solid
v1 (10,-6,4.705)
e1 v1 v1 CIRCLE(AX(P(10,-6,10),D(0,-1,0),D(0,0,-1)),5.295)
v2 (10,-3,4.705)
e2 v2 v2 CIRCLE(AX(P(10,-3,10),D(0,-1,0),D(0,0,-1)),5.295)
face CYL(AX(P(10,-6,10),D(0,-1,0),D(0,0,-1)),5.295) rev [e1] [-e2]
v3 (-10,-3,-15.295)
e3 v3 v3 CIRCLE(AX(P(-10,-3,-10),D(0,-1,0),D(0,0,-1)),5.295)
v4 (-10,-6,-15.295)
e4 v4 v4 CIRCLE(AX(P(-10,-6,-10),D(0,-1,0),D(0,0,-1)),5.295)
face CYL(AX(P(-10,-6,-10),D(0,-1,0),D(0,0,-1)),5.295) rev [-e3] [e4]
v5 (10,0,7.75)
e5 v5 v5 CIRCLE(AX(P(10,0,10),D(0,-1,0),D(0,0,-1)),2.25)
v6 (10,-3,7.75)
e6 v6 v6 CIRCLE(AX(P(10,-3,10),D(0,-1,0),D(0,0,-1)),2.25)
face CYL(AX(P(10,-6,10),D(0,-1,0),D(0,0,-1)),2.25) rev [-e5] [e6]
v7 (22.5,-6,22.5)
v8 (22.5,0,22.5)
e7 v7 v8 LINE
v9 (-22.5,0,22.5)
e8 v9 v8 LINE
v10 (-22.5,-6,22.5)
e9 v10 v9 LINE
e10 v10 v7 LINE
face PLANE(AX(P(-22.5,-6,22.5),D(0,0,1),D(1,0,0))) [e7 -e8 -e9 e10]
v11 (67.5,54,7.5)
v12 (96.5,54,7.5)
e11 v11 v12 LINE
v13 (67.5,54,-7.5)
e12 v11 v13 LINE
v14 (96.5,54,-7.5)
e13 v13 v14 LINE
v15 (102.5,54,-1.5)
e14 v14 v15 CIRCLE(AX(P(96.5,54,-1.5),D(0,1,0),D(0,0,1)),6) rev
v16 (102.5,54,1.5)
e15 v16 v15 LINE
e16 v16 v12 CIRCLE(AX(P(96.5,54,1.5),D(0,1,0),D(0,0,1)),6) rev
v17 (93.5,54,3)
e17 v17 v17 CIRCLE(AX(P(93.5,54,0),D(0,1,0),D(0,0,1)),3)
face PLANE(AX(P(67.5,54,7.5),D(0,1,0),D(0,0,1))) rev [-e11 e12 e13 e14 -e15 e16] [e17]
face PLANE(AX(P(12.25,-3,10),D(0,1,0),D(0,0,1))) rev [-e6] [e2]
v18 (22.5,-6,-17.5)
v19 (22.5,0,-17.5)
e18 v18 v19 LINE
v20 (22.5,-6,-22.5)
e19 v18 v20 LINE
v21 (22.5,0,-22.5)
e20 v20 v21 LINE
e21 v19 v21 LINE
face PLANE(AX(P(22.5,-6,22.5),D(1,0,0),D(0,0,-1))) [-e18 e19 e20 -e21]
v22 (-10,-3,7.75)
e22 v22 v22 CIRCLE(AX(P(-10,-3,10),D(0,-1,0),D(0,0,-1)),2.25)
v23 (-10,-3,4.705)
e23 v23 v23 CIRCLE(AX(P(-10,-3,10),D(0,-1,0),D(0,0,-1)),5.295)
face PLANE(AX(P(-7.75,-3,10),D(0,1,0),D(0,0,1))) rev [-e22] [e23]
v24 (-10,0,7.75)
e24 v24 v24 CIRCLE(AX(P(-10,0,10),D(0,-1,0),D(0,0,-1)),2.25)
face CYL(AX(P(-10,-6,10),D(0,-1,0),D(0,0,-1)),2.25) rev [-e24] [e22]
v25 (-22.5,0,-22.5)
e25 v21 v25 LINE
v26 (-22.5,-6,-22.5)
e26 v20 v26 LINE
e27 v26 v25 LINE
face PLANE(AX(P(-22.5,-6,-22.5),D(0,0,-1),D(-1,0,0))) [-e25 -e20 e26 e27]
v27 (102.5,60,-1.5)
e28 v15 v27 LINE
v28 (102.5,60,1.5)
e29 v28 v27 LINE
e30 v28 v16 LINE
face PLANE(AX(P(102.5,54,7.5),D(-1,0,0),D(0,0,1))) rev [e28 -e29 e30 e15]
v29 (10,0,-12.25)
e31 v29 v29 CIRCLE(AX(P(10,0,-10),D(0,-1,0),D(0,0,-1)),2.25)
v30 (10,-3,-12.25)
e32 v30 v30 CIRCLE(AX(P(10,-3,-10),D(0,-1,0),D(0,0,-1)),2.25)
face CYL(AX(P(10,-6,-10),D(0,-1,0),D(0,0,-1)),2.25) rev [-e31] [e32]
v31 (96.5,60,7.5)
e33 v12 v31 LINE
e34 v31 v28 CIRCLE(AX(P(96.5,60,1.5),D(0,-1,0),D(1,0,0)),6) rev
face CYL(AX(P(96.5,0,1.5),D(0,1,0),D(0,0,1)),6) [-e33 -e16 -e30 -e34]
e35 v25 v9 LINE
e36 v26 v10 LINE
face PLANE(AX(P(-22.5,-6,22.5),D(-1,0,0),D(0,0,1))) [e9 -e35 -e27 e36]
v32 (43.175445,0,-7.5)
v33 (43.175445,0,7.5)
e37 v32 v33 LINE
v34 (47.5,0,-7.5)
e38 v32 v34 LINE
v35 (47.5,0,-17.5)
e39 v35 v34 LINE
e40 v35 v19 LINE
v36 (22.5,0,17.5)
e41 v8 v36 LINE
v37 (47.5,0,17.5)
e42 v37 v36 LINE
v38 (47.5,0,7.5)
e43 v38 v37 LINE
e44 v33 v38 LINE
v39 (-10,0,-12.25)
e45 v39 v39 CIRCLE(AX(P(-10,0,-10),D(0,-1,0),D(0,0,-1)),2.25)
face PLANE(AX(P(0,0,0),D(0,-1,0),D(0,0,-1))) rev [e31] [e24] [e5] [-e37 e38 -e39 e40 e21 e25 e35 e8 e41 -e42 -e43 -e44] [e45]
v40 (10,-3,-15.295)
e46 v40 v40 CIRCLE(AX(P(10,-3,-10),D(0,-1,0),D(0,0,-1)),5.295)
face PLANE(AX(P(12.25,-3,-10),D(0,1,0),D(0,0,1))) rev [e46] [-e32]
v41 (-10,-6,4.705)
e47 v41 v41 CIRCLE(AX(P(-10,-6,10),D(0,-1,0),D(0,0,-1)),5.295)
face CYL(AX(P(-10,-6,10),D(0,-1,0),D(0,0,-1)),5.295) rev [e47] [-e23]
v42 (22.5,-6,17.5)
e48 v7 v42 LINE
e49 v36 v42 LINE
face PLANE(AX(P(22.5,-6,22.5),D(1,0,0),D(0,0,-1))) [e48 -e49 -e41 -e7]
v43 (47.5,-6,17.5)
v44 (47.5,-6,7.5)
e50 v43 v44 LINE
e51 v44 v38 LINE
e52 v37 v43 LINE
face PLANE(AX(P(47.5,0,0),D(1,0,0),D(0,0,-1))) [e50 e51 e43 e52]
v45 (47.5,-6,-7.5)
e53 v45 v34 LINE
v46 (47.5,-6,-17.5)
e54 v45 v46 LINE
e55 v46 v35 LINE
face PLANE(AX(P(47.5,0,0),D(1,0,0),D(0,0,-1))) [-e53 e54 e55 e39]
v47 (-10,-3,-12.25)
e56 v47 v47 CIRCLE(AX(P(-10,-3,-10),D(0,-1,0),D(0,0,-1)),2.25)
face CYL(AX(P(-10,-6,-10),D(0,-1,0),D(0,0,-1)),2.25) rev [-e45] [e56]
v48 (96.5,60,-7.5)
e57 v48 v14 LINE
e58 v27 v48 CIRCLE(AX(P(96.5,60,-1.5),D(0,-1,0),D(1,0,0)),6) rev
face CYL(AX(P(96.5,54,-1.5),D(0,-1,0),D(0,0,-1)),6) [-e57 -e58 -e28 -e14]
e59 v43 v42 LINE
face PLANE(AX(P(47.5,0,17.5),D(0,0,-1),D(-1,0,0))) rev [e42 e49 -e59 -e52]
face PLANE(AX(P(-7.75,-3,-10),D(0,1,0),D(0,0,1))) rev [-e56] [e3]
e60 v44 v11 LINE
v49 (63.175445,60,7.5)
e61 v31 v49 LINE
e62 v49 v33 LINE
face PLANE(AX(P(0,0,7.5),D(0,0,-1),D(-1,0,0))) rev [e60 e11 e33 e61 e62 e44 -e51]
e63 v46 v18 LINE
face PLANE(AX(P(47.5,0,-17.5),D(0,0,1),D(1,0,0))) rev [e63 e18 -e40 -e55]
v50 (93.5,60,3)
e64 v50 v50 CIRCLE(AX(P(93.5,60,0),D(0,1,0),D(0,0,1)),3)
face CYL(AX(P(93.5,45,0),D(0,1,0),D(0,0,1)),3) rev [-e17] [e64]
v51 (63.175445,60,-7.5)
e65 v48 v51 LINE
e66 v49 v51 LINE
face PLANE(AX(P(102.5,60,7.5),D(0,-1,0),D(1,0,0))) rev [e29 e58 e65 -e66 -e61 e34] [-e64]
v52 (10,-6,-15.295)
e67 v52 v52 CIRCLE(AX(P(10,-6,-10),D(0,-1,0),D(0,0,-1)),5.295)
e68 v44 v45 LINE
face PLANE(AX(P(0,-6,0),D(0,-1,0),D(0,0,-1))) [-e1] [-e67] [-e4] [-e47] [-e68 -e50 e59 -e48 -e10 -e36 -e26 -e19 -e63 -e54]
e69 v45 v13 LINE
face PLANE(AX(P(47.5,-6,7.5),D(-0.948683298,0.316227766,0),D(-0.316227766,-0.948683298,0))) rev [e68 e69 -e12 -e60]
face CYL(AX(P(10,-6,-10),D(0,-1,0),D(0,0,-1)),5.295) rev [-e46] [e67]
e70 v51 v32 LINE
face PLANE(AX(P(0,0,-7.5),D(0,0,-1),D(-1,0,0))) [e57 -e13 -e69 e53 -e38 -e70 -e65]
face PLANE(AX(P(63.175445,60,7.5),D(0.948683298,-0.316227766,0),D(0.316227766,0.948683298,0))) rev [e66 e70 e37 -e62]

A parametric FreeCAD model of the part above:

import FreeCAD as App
import Part
import Sketcher


def edges_at(feature, points):
    """Names of the edges that pass closest to the given points."""
    edges = feature.Shape.Edges
    near = lambda p: min(range(len(edges)), key=lambda i: edges[i].distToShape(Part.Vertex(*p))[0])
    return sorted({f"Edge{near(p) + 1}" for p in points})


def add_polygon(sketch, points):
    """Adds a closed chain of lines whose ends are joined by coincident constraints."""
    first, n = sketch.GeometryCount, len(points)
    for a, b in zip(points, points[1:] + points[:1]):
        sketch.addGeometry(Part.LineSegment(App.Vector(*a, 0), App.Vector(*b, 0)), False)
    for i in range(n):
        sketch.addConstraint(Sketcher.Constraint("Coincident", first + i, 2, first + (i + 1) % n, 1))

doc = App.newDocument("Part")
body = doc.addObject("PartDesign::Body", "Body")

# Sketch on XZ plane
sketch1 = doc.addObject("Sketcher::SketchObject", "Sketch")
body.addObject(sketch1)
sketch1.AttachmentSupport = (doc.XZ_Plane, [""])
sketch1.MapMode = "FlatFace"
add_polygon(sketch1, [(-22, -22), (-22, 22), (22, 22), (22, -22)])  # lines 0-3
sketch1.addConstraint(Sketcher.Constraint("Vertical", 0))
sketch1.addConstraint(Sketcher.Constraint("Horizontal", 1))
sketch1.addConstraint(Sketcher.Constraint("Vertical", 2))
sketch1.addConstraint(Sketcher.Constraint("Horizontal", 3))
sketch1.addConstraint(Sketcher.Constraint("Symmetric", 0, 2, 2, 2, -1, 1))
sketch1.addConstraint(Sketcher.Constraint("Equal", 3, 0))
sketch1.addConstraint(Sketcher.Constraint("DistanceX", 1, 1, 1, 2, 45.0))
pad1 = doc.addObject("PartDesign::Pad", "Pad")
body.addObject(pad1)
pad1.Profile = sketch1
pad1.Length = 6

# Sketch on XZ plane
sketch2 = doc.addObject("Sketcher::SketchObject", "Sketch001")
body.addObject(sketch2)
sketch2.AttachmentSupport = (doc.XZ_Plane, [""])
sketch2.MapMode = "FlatFace"
sketch2.AttachmentOffset = App.Placement(App.Vector(0, 0, 6), App.Rotation())
sketch2.addGeometry(Part.Circle(App.Vector(-10, 10, 0), App.Vector(0, 0, 1), 2.2), False)
sketch2.addGeometry(Part.Circle(App.Vector(10, 10, 0), App.Vector(0, 0, 1), 2.2), False)
sketch2.addGeometry(Part.Circle(App.Vector(10, -10, 0), App.Vector(0, 0, 1), 2.2), False)
sketch2.addGeometry(Part.Circle(App.Vector(-10, -10, 0), App.Vector(0, 0, 1), 2.2), False)
sketch2.addConstraint(Sketcher.Constraint("Equal", 0, 1))
sketch2.addConstraint(Sketcher.Constraint("Equal", 1, 2))
sketch2.addConstraint(Sketcher.Constraint("Equal", 2, 3))
sketch2.addConstraint(Sketcher.Constraint("Symmetric", 0, 3, 2, 3, -1, 1))
sketch2.addConstraint(Sketcher.Constraint("Symmetric", 1, 3, 3, 3, -1, 1))
sketch2.addConstraint(Sketcher.Constraint("Symmetric", 0, 3, 1, 3, -2))
sketch2.addConstraint(Sketcher.Constraint("Diameter", 0, 4.5))
sketch2.addConstraint(Sketcher.Constraint("DistanceX", 0, 3, -1, 1, 10.0))
sketch2.addConstraint(Sketcher.Constraint("DistanceY", -1, 1, 0, 3, 10.0))
doc.recompute()
hole = doc.addObject("PartDesign::Hole", "Hole")
body.addObject(hole)
hole.Profile = sketch2
hole.ThreadType = "None"
hole.Diameter = 4.5
hole.DepthType = "ThroughAll"
hole.HoleCutType = "Counterbore"
hole.HoleCutDiameter = 10.59
hole.HoleCutDepth = 3

# Sketch on YZ plane
sketch3 = doc.addObject("Sketcher::SketchObject", "Sketch002")
body.addObject(sketch3)
sketch3.AttachmentSupport = (doc.YZ_Plane, [""])
sketch3.MapMode = "FlatFace"
sketch3.AttachmentOffset = App.Placement(App.Vector(0, 0, 22.5), App.Rotation())
add_polygon(sketch3, [(0, 18), (-6, 18), (-6, -18), (0, -18)])  # lines 0-3
sketch3.addConstraint(Sketcher.Constraint("Horizontal", 0))
sketch3.addConstraint(Sketcher.Constraint("Vertical", 1))
sketch3.addConstraint(Sketcher.Constraint("Horizontal", 2))
sketch3.addConstraint(Sketcher.Constraint("Vertical", 3))
sketch3.addConstraint(Sketcher.Constraint("Symmetric", 2, 2, 3, 2, -1, 1))
sketch3.addConstraint(Sketcher.Constraint("DistanceX", 0, 2, 0, 1, 6.0))
sketch3.addConstraint(Sketcher.Constraint("DistanceY", 1, 2, 1, 1, 35.0))
pad2 = doc.addObject("PartDesign::Pad", "Pad001")
body.addObject(pad2)
pad2.Profile = sketch3
pad2.Length = 25

# Sketch on XY plane
sketch4 = doc.addObject("Sketcher::SketchObject", "Sketch003")
body.addObject(sketch4)
sketch4.AttachmentSupport = (doc.XY_Plane, [""])
sketch4.MapMode = "FlatFace"
add_polygon(sketch4, [(48, -6), (68, 54), (102, 54), (102, 60), (63, 60), (41, -6)])  # lines 0-5
sketch4.addConstraint(Sketcher.Constraint("Horizontal", 1))
sketch4.addConstraint(Sketcher.Constraint("Vertical", 2))
sketch4.addConstraint(Sketcher.Constraint("Horizontal", 3))
sketch4.addConstraint(Sketcher.Constraint("Horizontal", 5))
sketch4.addConstraint(Sketcher.Constraint("Parallel", 0, 4))
sketch4.addConstraint(Sketcher.Constraint("DistanceX", 1, 1, 1, 2, 35.0))
sketch4.addConstraint(Sketcher.Constraint("DistanceY", 2, 1, 2, 2, 6.0))
sketch4.addConstraint(Sketcher.Constraint("DistanceY", -1, 1, 0, 2, 54.0))
sketch4.addConstraint(Sketcher.Constraint("DistanceY", 4, 2, -1, 1, 6.0))
sketch4.addConstraint(Sketcher.Constraint("DistanceX", 4, 2, 3, 2, 22.0))
sketch4.addConstraint(Sketcher.Constraint("DistanceX", -1, 1, 0, 2, 67.5))
sketch4.addConstraint(Sketcher.Constraint("DistanceX", 3, 2, 3, 1, 39.324555))
pad3 = doc.addObject("PartDesign::Pad", "Pad002")
body.addObject(pad3)
pad3.Profile = sketch4
pad3.Length = 15
pad3.Midplane = True

# Sketch on XZ plane
sketch5 = doc.addObject("Sketcher::SketchObject", "Sketch004")
body.addObject(sketch5)
sketch5.AttachmentSupport = (doc.XZ_Plane, [""])
sketch5.MapMode = "FlatFace"
sketch5.AttachmentOffset = App.Placement(App.Vector(0, 0, -60), App.Rotation())
sketch5.addGeometry(Part.Circle(App.Vector(93.5, 0, 0), App.Vector(0, 0, 1), 3), False)
sketch5.addConstraint(Sketcher.Constraint("PointOnObject", 0, 3, -1))
sketch5.addConstraint(Sketcher.Constraint("Diameter", 0, 6.0))
sketch5.addConstraint(Sketcher.Constraint("DistanceX", -1, 1, 0, 3, 93.5))
pocket1 = doc.addObject("PartDesign::Pocket", "Pocket")
body.addObject(pocket1)
pocket1.Profile = sketch5
pocket1.Length = 15
pocket1.Reversed = True
doc.recompute()

fillet = doc.addObject("PartDesign::Fillet", "Fillet")
body.addObject(fillet)
fillet.Base = (pocket1, edges_at(pocket1, [(102.5, 57, 7.5), (102.5, 57, -7.5)]))
fillet.Radius = 6

doc.recompute()
